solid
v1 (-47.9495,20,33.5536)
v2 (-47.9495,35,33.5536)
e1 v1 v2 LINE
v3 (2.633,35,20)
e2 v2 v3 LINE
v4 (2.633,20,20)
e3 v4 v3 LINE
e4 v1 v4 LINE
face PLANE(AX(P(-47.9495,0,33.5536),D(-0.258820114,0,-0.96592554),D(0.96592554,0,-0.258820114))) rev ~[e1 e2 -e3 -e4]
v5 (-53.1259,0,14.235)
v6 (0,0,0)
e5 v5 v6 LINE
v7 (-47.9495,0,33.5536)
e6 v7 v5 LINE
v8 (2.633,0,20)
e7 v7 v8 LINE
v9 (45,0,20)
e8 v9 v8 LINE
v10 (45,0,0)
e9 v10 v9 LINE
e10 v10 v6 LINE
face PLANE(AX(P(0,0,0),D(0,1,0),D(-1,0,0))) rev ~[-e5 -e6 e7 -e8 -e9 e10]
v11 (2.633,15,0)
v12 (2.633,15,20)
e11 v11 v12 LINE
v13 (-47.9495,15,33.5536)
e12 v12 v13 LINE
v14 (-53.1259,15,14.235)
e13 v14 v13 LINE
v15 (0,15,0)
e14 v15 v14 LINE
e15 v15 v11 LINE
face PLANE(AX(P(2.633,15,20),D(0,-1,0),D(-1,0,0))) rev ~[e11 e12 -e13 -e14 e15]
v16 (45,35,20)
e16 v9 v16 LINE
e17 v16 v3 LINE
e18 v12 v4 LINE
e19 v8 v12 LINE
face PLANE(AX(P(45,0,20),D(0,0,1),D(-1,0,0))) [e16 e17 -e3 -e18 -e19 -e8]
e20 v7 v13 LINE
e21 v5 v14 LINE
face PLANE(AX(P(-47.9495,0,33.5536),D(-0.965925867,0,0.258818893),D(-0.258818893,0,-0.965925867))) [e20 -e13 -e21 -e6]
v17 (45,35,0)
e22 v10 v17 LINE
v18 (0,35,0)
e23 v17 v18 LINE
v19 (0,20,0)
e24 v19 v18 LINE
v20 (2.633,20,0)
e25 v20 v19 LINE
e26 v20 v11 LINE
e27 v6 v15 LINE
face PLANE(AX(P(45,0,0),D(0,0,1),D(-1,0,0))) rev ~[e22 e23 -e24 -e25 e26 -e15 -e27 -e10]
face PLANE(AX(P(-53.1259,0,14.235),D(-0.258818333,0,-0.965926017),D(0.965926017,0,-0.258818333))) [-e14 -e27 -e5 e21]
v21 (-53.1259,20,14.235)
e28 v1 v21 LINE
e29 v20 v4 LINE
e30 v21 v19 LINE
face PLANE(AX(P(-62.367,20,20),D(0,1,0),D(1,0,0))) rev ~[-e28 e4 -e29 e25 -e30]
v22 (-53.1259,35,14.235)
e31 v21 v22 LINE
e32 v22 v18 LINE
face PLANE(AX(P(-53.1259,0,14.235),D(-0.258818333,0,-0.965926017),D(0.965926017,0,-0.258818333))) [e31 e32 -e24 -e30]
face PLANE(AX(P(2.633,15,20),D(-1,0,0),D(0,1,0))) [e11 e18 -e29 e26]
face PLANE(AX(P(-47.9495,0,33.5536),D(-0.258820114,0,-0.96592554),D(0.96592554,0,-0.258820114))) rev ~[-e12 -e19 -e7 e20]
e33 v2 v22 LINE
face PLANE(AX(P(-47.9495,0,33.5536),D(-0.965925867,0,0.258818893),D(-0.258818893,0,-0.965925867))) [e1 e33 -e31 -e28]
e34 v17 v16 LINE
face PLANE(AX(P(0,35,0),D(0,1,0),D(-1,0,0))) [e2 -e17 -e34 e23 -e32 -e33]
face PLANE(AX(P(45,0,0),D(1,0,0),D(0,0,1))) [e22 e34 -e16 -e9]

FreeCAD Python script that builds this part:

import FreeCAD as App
import Part
import Sketcher
Q = App.Units.Quantity

doc = App.newDocument("Part")
body = doc.addObject("PartDesign::Body", "Body")

sketch1 = body.newObject("Sketcher::SketchObject", "Sketch")
sketch1.AttachmentSupport = (doc.getObject("XZ_Plane"), [""])
sketch1.MapMode = "FlatFace"
sketch1.addGeometry(Part.LineSegment(App.Vector(0, 0, 0), App.Vector(-53.1259, 14.235, 0)), False)
sketch1.addGeometry(Part.LineSegment(App.Vector(-53.1259, 14.235, 0), App.Vector(-47.9495, 33.5536, 0)), False)
sketch1.addGeometry(Part.LineSegment(App.Vector(-47.9495, 33.5536, 0), App.Vector(2.633, 20, 0)), False)
sketch1.addGeometry(Part.LineSegment(App.Vector(2.633, 20, 0), App.Vector(45, 20, 0)), False)
sketch1.addGeometry(Part.LineSegment(App.Vector(45, 20, 0), App.Vector(45, 0, 0)), False)
sketch1.addGeometry(Part.LineSegment(App.Vector(45, 0, 0), App.Vector(0, 0, 0)), False)
sketch1.addConstraint(Sketcher.Constraint("Coincident", 0, 2, 1, 1))
sketch1.addConstraint(Sketcher.Constraint("Coincident", 1, 2, 2, 1))
sketch1.addConstraint(Sketcher.Constraint("Coincident", 2, 2, 3, 1))
sketch1.addConstraint(Sketcher.Constraint("Coincident", 3, 2, 4, 1))
sketch1.addConstraint(Sketcher.Constraint("Coincident", 4, 2, 5, 1))
sketch1.addConstraint(Sketcher.Constraint("Coincident", 5, 2, 0, 1))
sketch1.addConstraint(Sketcher.Constraint("Horizontal", 3))
sketch1.addConstraint(Sketcher.Constraint("Vertical", 4))
sketch1.addConstraint(Sketcher.Constraint("Horizontal", 5))
sketch1.addConstraint(Sketcher.Constraint("Coincident", 5, 2, -1, 1))
sketch1.addConstraint(Sketcher.Constraint("Perpendicular", 0, 1))
sketch1.addConstraint(Sketcher.Constraint("Perpendicular", 1, 2))
sketch1.addConstraint(Sketcher.Constraint("DistanceX", 5, 2, 5, 1, Q("45 mm")))
sketch1.addConstraint(Sketcher.Constraint("DistanceY", 4, 2, 4, 1, Q("20 mm")))
sketch1.addConstraint(Sketcher.Constraint("Angle", 2, Q("-15 deg")))
sketch1.addConstraint(Sketcher.Constraint("Distance", 0, Q("55 mm")))
sketch1.addConstraint(Sketcher.Constraint("Distance", 1, Q("20 mm")))
pad1 = body.newObject("PartDesign::Pad", "Pad")
pad1.Profile = sketch1
pad1.Length = 35
pad1.Reversed = True

sketch2 = body.newObject("Sketcher::SketchObject", "Sketch001")
sketch2.AttachmentSupport = (doc.getObject("XY_Plane"), [""])
sketch2.MapMode = "FlatFace"
sketch2.AttachmentOffset = App.Placement(App.Vector(0, 0, 20), App.Rotation())
sketch2.addGeometry(Part.LineSegment(App.Vector(-62.367, 15, 0), App.Vector(2.633, 15, 0)), False)
sketch2.addGeometry(Part.LineSegment(App.Vector(2.633, 15, 0), App.Vector(2.633, 20, 0)), False)
sketch2.addGeometry(Part.LineSegment(App.Vector(2.633, 20, 0), App.Vector(-62.367, 20, 0)), False)
sketch2.addGeometry(Part.LineSegment(App.Vector(-62.367, 20, 0), App.Vector(-62.367, 15, 0)), False)
sketch2.addConstraint(Sketcher.Constraint("Coincident", 0, 2, 1, 1))
sketch2.addConstraint(Sketcher.Constraint("Coincident", 1, 2, 2, 1))
sketch2.addConstraint(Sketcher.Constraint("Coincident", 2, 2, 3, 1))
sketch2.addConstraint(Sketcher.Constraint("Coincident", 3, 2, 0, 1))
sketch2.addConstraint(Sketcher.Constraint("Horizontal", 0))
sketch2.addConstraint(Sketcher.Constraint("Vertical", 1))
sketch2.addConstraint(Sketcher.Constraint("Horizontal", 2))
sketch2.addConstraint(Sketcher.Constraint("Vertical", 3))
sketch2.addConstraint(Sketcher.Constraint("DistanceX", 0, 1, 0, 2, Q("65 mm")))
sketch2.addConstraint(Sketcher.Constraint("DistanceY", 1, 1, 1, 2, Q("5 mm")))
sketch2.addConstraint(Sketcher.Constraint("DistanceY", -1, 1, 0, 2, Q("15 mm")))
sketch2.addConstraint(Sketcher.Constraint("DistanceX", -1, 1, 0, 2, Q("2.633 mm")))
pocket1 = body.newObject("PartDesign::Pocket", "Pocket")
pocket1.Profile = sketch2
pocket1.Type = "ThroughAll"
pocket1.Midplane = True

doc.recompute()
